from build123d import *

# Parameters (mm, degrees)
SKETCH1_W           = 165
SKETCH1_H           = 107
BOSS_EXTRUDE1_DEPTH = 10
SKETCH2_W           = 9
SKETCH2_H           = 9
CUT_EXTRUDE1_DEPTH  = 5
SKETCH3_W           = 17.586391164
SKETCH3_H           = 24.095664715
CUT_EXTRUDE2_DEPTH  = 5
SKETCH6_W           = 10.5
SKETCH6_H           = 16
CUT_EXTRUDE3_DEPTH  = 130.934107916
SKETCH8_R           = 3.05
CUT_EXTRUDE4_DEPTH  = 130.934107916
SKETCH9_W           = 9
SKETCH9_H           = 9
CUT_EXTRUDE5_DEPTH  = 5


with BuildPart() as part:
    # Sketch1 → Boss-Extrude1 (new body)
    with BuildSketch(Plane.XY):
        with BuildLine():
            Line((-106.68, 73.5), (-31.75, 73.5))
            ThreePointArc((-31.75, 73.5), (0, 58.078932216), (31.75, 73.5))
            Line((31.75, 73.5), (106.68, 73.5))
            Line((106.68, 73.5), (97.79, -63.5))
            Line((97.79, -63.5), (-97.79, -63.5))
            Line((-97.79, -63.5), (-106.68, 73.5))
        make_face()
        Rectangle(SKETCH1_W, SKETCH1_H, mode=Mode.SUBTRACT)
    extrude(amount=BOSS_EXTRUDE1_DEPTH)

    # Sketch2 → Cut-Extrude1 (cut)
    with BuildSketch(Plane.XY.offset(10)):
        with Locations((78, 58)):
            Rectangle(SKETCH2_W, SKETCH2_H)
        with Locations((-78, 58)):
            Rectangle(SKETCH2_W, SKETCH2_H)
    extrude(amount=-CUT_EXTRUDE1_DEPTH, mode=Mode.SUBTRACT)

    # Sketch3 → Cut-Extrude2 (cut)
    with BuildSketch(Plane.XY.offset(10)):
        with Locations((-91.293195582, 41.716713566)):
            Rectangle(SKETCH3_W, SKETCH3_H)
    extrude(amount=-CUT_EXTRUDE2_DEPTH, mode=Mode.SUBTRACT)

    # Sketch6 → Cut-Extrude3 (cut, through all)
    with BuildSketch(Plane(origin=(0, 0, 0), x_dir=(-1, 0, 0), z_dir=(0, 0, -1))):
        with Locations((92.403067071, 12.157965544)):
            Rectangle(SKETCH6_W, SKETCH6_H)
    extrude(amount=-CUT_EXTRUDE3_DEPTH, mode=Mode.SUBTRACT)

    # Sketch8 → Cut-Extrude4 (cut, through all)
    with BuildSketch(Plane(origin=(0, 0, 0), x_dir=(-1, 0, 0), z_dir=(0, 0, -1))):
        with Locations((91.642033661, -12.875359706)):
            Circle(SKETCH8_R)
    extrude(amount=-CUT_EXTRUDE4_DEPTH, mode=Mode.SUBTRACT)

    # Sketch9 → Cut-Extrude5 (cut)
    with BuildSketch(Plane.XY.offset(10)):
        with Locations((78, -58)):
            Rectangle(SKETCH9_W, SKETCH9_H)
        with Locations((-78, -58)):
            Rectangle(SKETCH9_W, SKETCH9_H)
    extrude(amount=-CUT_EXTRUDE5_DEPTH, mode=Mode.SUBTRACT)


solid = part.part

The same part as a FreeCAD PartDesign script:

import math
import FreeCAD as App
import Part
import Sketcher
Q = App.Units.Quantity


def add_polygon(sketch, points):
    """Adds a closed chain of lines whose ends are joined by coincident constraints."""
    first, n = sketch.GeometryCount, len(points)
    for a, b in zip(points, points[1:] + points[:1]):
        sketch.addGeometry(Part.LineSegment(App.Vector(*a, 0), App.Vector(*b, 0)), False)
    for i in range(n):
        sketch.addConstraint(Sketcher.Constraint("Coincident", first + i, 2, first + (i + 1) % n, 1))

doc = App.newDocument("Part")
body = doc.addObject("PartDesign::Body", "Body")

sketch1 = body.newObject("Sketcher::SketchObject", "Sketch")
sketch1.AttachmentSupport = (doc.getObject("XY_Plane"), [""])
sketch1.MapMode = "FlatFace"
sketch1.addGeometry(Part.LineSegment(App.Vector(-32, 74, 0), App.Vector(-107, 74, 0)), False)
sketch1.addGeometry(Part.LineSegment(App.Vector(-107, 74, 0), App.Vector(-98, -64, 0)), False)
sketch1.addGeometry(Part.LineSegment(App.Vector(-98, -64, 0), App.Vector(98, -64, 0)), False)
sketch1.addGeometry(Part.LineSegment(App.Vector(98, -64, 0), App.Vector(107, 74, 0)), False)
sketch1.addGeometry(Part.LineSegment(App.Vector(107, 74, 0), App.Vector(32, 74, 0)), False)
sketch1.addGeometry(Part.ArcOfCircle(Part.Circle(App.Vector(0, 98, 0), App.Vector(0, 0, 1), 40), math.radians(-142), math.radians(-38)), False)
add_polygon(sketch1, [(-82, -54), (-82, 54), (82, 54), (82, -54)])
sketch1.addConstraint(Sketcher.Constraint("Coincident", 0, 2, 1, 1))
sketch1.addConstraint(Sketcher.Constraint("Coincident", 1, 2, 2, 1))
sketch1.addConstraint(Sketcher.Constraint("Coincident", 2, 2, 3, 1))
sketch1.addConstraint(Sketcher.Constraint("Coincident", 3, 2, 4, 1))
sketch1.addConstraint(Sketcher.Constraint("Coincident", 4, 2, 5, 2))
sketch1.addConstraint(Sketcher.Constraint("Coincident", 5, 1, 0, 1))
sketch1.addConstraint(Sketcher.Constraint("Horizontal", 0))
sketch1.addConstraint(Sketcher.Constraint("Horizontal", 2))
sketch1.addConstraint(Sketcher.Constraint("Horizontal", 4))
sketch1.addConstraint(Sketcher.Constraint("Vertical", 6))
sketch1.addConstraint(Sketcher.Constraint("Horizontal", 7))
sketch1.addConstraint(Sketcher.Constraint("Vertical", 8))
sketch1.addConstraint(Sketcher.Constraint("Horizontal", 9))
sketch1.addConstraint(Sketcher.Constraint("Symmetric", 6, 2, 8, 2, -1, 1))
sketch1.addConstraint(Sketcher.Constraint("Symmetric", 0, 2, 3, 2, -2))
sketch1.addConstraint(Sketcher.Constraint("PointOnObject", 5, 3, -2))
sketch1.addConstraint(Sketcher.Constraint("Equal", 1, 3))
sketch1.addConstraint(Sketcher.Constraint("DistanceX", 7, 1, 7, 2, Q("165 mm")))
sketch1.addConstraint(Sketcher.Constraint("DistanceY", 6, 1, 6, 2, Q("107 mm")))
sketch1.addConstraint(Sketcher.Constraint("DistanceY", 1, 2, 0, 2, Q("137 mm")))
sketch1.addConstraint(Sketcher.Constraint("DistanceY", 6, 2, 0, 2, Q("20 mm")))
sketch1.addConstraint(Sketcher.Constraint("DistanceX", 0, 2, 0, 1, Q("74.93 mm")))
sketch1.addConstraint(Sketcher.Constraint("DistanceX", 2, 1, 2, 2, Q("195.58 mm")))
sketch1.addConstraint(Sketcher.Constraint("DistanceX", 5, 1, 4, 2, Q("63.5 mm")))
sketch1.addConstraint(Sketcher.Constraint("Radius", 5, Q("40.395122 mm")))
pad1 = body.newObject("PartDesign::Pad", "Pad")
pad1.Profile = sketch1
pad1.Length = 10

sketch2 = body.newObject("Sketcher::SketchObject", "Sketch001")
sketch2.AttachmentSupport = (doc.getObject("XY_Plane"), [""])
sketch2.MapMode = "FlatFace"
sketch2.AttachmentOffset = App.Placement(App.Vector(0, 0, 10), App.Rotation())
add_polygon(sketch2, [(74, 62), (74, 54), (82, 54), (82, 62)])
add_polygon(sketch2, [(-82, 62), (-82, 54), (-74, 54), (-74, 62)])
sketch2.addConstraint(Sketcher.Constraint("Vertical", 0))
sketch2.addConstraint(Sketcher.Constraint("Horizontal", 1))
sketch2.addConstraint(Sketcher.Constraint("Vertical", 2))
sketch2.addConstraint(Sketcher.Constraint("Horizontal", 3))
sketch2.addConstraint(Sketcher.Constraint("Vertical", 4))
sketch2.addConstraint(Sketcher.Constraint("Horizontal", 5))
sketch2.addConstraint(Sketcher.Constraint("Vertical", 6))
sketch2.addConstraint(Sketcher.Constraint("Horizontal", 7))
sketch2.addConstraint(Sketcher.Constraint("Symmetric", 1, 2, 4, 2, -2))
sketch2.addConstraint(Sketcher.Constraint("Symmetric", 3, 2, 6, 2, -2))
sketch2.addConstraint(Sketcher.Constraint("Equal", 7, 0))
sketch2.addConstraint(Sketcher.Constraint("DistanceX", 1, 1, 1, 2, Q("9 mm")))
sketch2.addConstraint(Sketcher.Constraint("DistanceX", 4, 2, 0, 2, Q("156 mm")))
sketch2.addConstraint(Sketcher.Constraint("DistanceY", -1, 1, 0, 2, Q("53.5 mm")))
pocket1 = body.newObject("PartDesign::Pocket", "Pocket")
pocket1.Profile = sketch2
pocket1.Length = 5

sketch3 = body.newObject("Sketcher::SketchObject", "Sketch002")
sketch3.AttachmentSupport = (doc.getObject("XY_Plane"), [""])
sketch3.MapMode = "FlatFace"
sketch3.AttachmentOffset = App.Placement(App.Vector(0, 0, 10), App.Rotation())
add_polygon(sketch3, [(-100, 54), (-100, 30), (-82, 30), (-82, 54)])
sketch3.addConstraint(Sketcher.Constraint("Vertical", 0))
sketch3.addConstraint(Sketcher.Constraint("Horizontal", 1))
sketch3.addConstraint(Sketcher.Constraint("Vertical", 2))
sketch3.addConstraint(Sketcher.Constraint("Horizontal", 3))
sketch3.addConstraint(Sketcher.Constraint("DistanceX", 1, 2, -1, 1, Q("82.5 mm")))
sketch3.addConstraint(Sketcher.Constraint("DistanceX", 1, 1, 1, 2, Q("17.586391 mm")))
sketch3.addConstraint(Sketcher.Constraint("DistanceY", 0, 2, 0, 1, Q("24.095665 mm")))
sketch3.addConstraint(Sketcher.Constraint("DistanceY", -1, 1, 0, 2, Q("29.668881 mm")))
pocket2 = body.newObject("PartDesign::Pocket", "Pocket001")
pocket2.Profile = sketch3
pocket2.Length = 5

sketch4 = body.newObject("Sketcher::SketchObject", "Sketch003")
sketch4.AttachmentSupport = (doc.getObject("XY_Plane"), [""])
sketch4.MapMode = "FlatFace"
add_polygon(sketch4, [(-87, 20), (-87, 4), (-98, 4), (-98, 20)])
sketch4.addConstraint(Sketcher.Constraint("Vertical", 0))
sketch4.addConstraint(Sketcher.Constraint("Horizontal", 1))
sketch4.addConstraint(Sketcher.Constraint("Vertical", 2))
sketch4.addConstraint(Sketcher.Constraint("Horizontal", 3))
sketch4.addConstraint(Sketcher.Constraint("DistanceY", 0, 2, 0, 1, Q("16 mm")))
sketch4.addConstraint(Sketcher.Constraint("DistanceX", 1, 2, 1, 1, Q("10.5 mm")))
sketch4.addConstraint(Sketcher.Constraint("DistanceX", 0, 2, -1, 1, Q("87.153067 mm")))
sketch4.addConstraint(Sketcher.Constraint("DistanceY", -1, 1, 0, 2, Q("4.157966 mm")))
pocket3 = body.newObject("PartDesign::Pocket", "Pocket002")
pocket3.Profile = sketch4
pocket3.Type = "ThroughAll"
pocket3.Reversed = True

sketch5 = body.newObject("Sketcher::SketchObject", "Sketch004")
sketch5.AttachmentSupport = (doc.getObject("XY_Plane"), [""])
sketch5.MapMode = "FlatFace"
sketch5.addGeometry(Part.Circle(App.Vector(-91.6, -12.9, 0), App.Vector(0, 0, 1), 3), False)
sketch5.addConstraint(Sketcher.Constraint("Diameter", 0, Q("6.1 mm")))
sketch5.addConstraint(Sketcher.Constraint("DistanceY", 0, 3, -1, 1, Q("12.87536 mm")))
sketch5.addConstraint(Sketcher.Constraint("DistanceX", 0, 3, -1, 1, Q("91.642034 mm")))
pocket4 = body.newObject("PartDesign::Pocket", "Pocket003")
pocket4.Profile = sketch5
pocket4.Type = "ThroughAll"
pocket4.Reversed = True

sketch6 = body.newObject("Sketcher::SketchObject", "Sketch005")
sketch6.AttachmentSupport = (doc.getObject("XY_Plane"), [""])
sketch6.MapMode = "FlatFace"
sketch6.AttachmentOffset = App.Placement(App.Vector(0, 0, 10), App.Rotation())
add_polygon(sketch6, [(74, -54), (74, -62), (82, -62), (82, -54)])
add_polygon(sketch6, [(-82, -54), (-82, -62), (-74, -62), (-74, -54)])
sketch6.addConstraint(Sketcher.Constraint("Vertical", 0))
sketch6.addConstraint(Sketcher.Constraint("Horizontal", 1))
sketch6.addConstraint(Sketcher.Constraint("Vertical", 2))
sketch6.addConstraint(Sketcher.Constraint("Horizontal", 3))
sketch6.addConstraint(Sketcher.Constraint("Vertical", 4))
sketch6.addConstraint(Sketcher.Constraint("Horizontal", 5))
sketch6.addConstraint(Sketcher.Constraint("Vertical", 6))
sketch6.addConstraint(Sketcher.Constraint("Horizontal", 7))
sketch6.addConstraint(Sketcher.Constraint("Symmetric", 1, 2, 4, 2, -2))
sketch6.addConstraint(Sketcher.Constraint("Symmetric", 3, 2, 6, 2, -2))
sketch6.addConstraint(Sketcher.Constraint("Equal", 7, 0))
sketch6.addConstraint(Sketcher.Constraint("DistanceX", 1, 1, 1, 2, Q("9 mm")))
sketch6.addConstraint(Sketcher.Constraint("DistanceX", 4, 2, 0, 2, Q("156 mm")))
sketch6.addConstraint(Sketcher.Constraint("DistanceY", 0, 2, -1, 1, Q("62.5 mm")))
pocket5 = body.newObject("PartDesign::Pocket", "Pocket004")
pocket5.Profile = sketch6
pocket5.Length = 5

doc.recompute()
